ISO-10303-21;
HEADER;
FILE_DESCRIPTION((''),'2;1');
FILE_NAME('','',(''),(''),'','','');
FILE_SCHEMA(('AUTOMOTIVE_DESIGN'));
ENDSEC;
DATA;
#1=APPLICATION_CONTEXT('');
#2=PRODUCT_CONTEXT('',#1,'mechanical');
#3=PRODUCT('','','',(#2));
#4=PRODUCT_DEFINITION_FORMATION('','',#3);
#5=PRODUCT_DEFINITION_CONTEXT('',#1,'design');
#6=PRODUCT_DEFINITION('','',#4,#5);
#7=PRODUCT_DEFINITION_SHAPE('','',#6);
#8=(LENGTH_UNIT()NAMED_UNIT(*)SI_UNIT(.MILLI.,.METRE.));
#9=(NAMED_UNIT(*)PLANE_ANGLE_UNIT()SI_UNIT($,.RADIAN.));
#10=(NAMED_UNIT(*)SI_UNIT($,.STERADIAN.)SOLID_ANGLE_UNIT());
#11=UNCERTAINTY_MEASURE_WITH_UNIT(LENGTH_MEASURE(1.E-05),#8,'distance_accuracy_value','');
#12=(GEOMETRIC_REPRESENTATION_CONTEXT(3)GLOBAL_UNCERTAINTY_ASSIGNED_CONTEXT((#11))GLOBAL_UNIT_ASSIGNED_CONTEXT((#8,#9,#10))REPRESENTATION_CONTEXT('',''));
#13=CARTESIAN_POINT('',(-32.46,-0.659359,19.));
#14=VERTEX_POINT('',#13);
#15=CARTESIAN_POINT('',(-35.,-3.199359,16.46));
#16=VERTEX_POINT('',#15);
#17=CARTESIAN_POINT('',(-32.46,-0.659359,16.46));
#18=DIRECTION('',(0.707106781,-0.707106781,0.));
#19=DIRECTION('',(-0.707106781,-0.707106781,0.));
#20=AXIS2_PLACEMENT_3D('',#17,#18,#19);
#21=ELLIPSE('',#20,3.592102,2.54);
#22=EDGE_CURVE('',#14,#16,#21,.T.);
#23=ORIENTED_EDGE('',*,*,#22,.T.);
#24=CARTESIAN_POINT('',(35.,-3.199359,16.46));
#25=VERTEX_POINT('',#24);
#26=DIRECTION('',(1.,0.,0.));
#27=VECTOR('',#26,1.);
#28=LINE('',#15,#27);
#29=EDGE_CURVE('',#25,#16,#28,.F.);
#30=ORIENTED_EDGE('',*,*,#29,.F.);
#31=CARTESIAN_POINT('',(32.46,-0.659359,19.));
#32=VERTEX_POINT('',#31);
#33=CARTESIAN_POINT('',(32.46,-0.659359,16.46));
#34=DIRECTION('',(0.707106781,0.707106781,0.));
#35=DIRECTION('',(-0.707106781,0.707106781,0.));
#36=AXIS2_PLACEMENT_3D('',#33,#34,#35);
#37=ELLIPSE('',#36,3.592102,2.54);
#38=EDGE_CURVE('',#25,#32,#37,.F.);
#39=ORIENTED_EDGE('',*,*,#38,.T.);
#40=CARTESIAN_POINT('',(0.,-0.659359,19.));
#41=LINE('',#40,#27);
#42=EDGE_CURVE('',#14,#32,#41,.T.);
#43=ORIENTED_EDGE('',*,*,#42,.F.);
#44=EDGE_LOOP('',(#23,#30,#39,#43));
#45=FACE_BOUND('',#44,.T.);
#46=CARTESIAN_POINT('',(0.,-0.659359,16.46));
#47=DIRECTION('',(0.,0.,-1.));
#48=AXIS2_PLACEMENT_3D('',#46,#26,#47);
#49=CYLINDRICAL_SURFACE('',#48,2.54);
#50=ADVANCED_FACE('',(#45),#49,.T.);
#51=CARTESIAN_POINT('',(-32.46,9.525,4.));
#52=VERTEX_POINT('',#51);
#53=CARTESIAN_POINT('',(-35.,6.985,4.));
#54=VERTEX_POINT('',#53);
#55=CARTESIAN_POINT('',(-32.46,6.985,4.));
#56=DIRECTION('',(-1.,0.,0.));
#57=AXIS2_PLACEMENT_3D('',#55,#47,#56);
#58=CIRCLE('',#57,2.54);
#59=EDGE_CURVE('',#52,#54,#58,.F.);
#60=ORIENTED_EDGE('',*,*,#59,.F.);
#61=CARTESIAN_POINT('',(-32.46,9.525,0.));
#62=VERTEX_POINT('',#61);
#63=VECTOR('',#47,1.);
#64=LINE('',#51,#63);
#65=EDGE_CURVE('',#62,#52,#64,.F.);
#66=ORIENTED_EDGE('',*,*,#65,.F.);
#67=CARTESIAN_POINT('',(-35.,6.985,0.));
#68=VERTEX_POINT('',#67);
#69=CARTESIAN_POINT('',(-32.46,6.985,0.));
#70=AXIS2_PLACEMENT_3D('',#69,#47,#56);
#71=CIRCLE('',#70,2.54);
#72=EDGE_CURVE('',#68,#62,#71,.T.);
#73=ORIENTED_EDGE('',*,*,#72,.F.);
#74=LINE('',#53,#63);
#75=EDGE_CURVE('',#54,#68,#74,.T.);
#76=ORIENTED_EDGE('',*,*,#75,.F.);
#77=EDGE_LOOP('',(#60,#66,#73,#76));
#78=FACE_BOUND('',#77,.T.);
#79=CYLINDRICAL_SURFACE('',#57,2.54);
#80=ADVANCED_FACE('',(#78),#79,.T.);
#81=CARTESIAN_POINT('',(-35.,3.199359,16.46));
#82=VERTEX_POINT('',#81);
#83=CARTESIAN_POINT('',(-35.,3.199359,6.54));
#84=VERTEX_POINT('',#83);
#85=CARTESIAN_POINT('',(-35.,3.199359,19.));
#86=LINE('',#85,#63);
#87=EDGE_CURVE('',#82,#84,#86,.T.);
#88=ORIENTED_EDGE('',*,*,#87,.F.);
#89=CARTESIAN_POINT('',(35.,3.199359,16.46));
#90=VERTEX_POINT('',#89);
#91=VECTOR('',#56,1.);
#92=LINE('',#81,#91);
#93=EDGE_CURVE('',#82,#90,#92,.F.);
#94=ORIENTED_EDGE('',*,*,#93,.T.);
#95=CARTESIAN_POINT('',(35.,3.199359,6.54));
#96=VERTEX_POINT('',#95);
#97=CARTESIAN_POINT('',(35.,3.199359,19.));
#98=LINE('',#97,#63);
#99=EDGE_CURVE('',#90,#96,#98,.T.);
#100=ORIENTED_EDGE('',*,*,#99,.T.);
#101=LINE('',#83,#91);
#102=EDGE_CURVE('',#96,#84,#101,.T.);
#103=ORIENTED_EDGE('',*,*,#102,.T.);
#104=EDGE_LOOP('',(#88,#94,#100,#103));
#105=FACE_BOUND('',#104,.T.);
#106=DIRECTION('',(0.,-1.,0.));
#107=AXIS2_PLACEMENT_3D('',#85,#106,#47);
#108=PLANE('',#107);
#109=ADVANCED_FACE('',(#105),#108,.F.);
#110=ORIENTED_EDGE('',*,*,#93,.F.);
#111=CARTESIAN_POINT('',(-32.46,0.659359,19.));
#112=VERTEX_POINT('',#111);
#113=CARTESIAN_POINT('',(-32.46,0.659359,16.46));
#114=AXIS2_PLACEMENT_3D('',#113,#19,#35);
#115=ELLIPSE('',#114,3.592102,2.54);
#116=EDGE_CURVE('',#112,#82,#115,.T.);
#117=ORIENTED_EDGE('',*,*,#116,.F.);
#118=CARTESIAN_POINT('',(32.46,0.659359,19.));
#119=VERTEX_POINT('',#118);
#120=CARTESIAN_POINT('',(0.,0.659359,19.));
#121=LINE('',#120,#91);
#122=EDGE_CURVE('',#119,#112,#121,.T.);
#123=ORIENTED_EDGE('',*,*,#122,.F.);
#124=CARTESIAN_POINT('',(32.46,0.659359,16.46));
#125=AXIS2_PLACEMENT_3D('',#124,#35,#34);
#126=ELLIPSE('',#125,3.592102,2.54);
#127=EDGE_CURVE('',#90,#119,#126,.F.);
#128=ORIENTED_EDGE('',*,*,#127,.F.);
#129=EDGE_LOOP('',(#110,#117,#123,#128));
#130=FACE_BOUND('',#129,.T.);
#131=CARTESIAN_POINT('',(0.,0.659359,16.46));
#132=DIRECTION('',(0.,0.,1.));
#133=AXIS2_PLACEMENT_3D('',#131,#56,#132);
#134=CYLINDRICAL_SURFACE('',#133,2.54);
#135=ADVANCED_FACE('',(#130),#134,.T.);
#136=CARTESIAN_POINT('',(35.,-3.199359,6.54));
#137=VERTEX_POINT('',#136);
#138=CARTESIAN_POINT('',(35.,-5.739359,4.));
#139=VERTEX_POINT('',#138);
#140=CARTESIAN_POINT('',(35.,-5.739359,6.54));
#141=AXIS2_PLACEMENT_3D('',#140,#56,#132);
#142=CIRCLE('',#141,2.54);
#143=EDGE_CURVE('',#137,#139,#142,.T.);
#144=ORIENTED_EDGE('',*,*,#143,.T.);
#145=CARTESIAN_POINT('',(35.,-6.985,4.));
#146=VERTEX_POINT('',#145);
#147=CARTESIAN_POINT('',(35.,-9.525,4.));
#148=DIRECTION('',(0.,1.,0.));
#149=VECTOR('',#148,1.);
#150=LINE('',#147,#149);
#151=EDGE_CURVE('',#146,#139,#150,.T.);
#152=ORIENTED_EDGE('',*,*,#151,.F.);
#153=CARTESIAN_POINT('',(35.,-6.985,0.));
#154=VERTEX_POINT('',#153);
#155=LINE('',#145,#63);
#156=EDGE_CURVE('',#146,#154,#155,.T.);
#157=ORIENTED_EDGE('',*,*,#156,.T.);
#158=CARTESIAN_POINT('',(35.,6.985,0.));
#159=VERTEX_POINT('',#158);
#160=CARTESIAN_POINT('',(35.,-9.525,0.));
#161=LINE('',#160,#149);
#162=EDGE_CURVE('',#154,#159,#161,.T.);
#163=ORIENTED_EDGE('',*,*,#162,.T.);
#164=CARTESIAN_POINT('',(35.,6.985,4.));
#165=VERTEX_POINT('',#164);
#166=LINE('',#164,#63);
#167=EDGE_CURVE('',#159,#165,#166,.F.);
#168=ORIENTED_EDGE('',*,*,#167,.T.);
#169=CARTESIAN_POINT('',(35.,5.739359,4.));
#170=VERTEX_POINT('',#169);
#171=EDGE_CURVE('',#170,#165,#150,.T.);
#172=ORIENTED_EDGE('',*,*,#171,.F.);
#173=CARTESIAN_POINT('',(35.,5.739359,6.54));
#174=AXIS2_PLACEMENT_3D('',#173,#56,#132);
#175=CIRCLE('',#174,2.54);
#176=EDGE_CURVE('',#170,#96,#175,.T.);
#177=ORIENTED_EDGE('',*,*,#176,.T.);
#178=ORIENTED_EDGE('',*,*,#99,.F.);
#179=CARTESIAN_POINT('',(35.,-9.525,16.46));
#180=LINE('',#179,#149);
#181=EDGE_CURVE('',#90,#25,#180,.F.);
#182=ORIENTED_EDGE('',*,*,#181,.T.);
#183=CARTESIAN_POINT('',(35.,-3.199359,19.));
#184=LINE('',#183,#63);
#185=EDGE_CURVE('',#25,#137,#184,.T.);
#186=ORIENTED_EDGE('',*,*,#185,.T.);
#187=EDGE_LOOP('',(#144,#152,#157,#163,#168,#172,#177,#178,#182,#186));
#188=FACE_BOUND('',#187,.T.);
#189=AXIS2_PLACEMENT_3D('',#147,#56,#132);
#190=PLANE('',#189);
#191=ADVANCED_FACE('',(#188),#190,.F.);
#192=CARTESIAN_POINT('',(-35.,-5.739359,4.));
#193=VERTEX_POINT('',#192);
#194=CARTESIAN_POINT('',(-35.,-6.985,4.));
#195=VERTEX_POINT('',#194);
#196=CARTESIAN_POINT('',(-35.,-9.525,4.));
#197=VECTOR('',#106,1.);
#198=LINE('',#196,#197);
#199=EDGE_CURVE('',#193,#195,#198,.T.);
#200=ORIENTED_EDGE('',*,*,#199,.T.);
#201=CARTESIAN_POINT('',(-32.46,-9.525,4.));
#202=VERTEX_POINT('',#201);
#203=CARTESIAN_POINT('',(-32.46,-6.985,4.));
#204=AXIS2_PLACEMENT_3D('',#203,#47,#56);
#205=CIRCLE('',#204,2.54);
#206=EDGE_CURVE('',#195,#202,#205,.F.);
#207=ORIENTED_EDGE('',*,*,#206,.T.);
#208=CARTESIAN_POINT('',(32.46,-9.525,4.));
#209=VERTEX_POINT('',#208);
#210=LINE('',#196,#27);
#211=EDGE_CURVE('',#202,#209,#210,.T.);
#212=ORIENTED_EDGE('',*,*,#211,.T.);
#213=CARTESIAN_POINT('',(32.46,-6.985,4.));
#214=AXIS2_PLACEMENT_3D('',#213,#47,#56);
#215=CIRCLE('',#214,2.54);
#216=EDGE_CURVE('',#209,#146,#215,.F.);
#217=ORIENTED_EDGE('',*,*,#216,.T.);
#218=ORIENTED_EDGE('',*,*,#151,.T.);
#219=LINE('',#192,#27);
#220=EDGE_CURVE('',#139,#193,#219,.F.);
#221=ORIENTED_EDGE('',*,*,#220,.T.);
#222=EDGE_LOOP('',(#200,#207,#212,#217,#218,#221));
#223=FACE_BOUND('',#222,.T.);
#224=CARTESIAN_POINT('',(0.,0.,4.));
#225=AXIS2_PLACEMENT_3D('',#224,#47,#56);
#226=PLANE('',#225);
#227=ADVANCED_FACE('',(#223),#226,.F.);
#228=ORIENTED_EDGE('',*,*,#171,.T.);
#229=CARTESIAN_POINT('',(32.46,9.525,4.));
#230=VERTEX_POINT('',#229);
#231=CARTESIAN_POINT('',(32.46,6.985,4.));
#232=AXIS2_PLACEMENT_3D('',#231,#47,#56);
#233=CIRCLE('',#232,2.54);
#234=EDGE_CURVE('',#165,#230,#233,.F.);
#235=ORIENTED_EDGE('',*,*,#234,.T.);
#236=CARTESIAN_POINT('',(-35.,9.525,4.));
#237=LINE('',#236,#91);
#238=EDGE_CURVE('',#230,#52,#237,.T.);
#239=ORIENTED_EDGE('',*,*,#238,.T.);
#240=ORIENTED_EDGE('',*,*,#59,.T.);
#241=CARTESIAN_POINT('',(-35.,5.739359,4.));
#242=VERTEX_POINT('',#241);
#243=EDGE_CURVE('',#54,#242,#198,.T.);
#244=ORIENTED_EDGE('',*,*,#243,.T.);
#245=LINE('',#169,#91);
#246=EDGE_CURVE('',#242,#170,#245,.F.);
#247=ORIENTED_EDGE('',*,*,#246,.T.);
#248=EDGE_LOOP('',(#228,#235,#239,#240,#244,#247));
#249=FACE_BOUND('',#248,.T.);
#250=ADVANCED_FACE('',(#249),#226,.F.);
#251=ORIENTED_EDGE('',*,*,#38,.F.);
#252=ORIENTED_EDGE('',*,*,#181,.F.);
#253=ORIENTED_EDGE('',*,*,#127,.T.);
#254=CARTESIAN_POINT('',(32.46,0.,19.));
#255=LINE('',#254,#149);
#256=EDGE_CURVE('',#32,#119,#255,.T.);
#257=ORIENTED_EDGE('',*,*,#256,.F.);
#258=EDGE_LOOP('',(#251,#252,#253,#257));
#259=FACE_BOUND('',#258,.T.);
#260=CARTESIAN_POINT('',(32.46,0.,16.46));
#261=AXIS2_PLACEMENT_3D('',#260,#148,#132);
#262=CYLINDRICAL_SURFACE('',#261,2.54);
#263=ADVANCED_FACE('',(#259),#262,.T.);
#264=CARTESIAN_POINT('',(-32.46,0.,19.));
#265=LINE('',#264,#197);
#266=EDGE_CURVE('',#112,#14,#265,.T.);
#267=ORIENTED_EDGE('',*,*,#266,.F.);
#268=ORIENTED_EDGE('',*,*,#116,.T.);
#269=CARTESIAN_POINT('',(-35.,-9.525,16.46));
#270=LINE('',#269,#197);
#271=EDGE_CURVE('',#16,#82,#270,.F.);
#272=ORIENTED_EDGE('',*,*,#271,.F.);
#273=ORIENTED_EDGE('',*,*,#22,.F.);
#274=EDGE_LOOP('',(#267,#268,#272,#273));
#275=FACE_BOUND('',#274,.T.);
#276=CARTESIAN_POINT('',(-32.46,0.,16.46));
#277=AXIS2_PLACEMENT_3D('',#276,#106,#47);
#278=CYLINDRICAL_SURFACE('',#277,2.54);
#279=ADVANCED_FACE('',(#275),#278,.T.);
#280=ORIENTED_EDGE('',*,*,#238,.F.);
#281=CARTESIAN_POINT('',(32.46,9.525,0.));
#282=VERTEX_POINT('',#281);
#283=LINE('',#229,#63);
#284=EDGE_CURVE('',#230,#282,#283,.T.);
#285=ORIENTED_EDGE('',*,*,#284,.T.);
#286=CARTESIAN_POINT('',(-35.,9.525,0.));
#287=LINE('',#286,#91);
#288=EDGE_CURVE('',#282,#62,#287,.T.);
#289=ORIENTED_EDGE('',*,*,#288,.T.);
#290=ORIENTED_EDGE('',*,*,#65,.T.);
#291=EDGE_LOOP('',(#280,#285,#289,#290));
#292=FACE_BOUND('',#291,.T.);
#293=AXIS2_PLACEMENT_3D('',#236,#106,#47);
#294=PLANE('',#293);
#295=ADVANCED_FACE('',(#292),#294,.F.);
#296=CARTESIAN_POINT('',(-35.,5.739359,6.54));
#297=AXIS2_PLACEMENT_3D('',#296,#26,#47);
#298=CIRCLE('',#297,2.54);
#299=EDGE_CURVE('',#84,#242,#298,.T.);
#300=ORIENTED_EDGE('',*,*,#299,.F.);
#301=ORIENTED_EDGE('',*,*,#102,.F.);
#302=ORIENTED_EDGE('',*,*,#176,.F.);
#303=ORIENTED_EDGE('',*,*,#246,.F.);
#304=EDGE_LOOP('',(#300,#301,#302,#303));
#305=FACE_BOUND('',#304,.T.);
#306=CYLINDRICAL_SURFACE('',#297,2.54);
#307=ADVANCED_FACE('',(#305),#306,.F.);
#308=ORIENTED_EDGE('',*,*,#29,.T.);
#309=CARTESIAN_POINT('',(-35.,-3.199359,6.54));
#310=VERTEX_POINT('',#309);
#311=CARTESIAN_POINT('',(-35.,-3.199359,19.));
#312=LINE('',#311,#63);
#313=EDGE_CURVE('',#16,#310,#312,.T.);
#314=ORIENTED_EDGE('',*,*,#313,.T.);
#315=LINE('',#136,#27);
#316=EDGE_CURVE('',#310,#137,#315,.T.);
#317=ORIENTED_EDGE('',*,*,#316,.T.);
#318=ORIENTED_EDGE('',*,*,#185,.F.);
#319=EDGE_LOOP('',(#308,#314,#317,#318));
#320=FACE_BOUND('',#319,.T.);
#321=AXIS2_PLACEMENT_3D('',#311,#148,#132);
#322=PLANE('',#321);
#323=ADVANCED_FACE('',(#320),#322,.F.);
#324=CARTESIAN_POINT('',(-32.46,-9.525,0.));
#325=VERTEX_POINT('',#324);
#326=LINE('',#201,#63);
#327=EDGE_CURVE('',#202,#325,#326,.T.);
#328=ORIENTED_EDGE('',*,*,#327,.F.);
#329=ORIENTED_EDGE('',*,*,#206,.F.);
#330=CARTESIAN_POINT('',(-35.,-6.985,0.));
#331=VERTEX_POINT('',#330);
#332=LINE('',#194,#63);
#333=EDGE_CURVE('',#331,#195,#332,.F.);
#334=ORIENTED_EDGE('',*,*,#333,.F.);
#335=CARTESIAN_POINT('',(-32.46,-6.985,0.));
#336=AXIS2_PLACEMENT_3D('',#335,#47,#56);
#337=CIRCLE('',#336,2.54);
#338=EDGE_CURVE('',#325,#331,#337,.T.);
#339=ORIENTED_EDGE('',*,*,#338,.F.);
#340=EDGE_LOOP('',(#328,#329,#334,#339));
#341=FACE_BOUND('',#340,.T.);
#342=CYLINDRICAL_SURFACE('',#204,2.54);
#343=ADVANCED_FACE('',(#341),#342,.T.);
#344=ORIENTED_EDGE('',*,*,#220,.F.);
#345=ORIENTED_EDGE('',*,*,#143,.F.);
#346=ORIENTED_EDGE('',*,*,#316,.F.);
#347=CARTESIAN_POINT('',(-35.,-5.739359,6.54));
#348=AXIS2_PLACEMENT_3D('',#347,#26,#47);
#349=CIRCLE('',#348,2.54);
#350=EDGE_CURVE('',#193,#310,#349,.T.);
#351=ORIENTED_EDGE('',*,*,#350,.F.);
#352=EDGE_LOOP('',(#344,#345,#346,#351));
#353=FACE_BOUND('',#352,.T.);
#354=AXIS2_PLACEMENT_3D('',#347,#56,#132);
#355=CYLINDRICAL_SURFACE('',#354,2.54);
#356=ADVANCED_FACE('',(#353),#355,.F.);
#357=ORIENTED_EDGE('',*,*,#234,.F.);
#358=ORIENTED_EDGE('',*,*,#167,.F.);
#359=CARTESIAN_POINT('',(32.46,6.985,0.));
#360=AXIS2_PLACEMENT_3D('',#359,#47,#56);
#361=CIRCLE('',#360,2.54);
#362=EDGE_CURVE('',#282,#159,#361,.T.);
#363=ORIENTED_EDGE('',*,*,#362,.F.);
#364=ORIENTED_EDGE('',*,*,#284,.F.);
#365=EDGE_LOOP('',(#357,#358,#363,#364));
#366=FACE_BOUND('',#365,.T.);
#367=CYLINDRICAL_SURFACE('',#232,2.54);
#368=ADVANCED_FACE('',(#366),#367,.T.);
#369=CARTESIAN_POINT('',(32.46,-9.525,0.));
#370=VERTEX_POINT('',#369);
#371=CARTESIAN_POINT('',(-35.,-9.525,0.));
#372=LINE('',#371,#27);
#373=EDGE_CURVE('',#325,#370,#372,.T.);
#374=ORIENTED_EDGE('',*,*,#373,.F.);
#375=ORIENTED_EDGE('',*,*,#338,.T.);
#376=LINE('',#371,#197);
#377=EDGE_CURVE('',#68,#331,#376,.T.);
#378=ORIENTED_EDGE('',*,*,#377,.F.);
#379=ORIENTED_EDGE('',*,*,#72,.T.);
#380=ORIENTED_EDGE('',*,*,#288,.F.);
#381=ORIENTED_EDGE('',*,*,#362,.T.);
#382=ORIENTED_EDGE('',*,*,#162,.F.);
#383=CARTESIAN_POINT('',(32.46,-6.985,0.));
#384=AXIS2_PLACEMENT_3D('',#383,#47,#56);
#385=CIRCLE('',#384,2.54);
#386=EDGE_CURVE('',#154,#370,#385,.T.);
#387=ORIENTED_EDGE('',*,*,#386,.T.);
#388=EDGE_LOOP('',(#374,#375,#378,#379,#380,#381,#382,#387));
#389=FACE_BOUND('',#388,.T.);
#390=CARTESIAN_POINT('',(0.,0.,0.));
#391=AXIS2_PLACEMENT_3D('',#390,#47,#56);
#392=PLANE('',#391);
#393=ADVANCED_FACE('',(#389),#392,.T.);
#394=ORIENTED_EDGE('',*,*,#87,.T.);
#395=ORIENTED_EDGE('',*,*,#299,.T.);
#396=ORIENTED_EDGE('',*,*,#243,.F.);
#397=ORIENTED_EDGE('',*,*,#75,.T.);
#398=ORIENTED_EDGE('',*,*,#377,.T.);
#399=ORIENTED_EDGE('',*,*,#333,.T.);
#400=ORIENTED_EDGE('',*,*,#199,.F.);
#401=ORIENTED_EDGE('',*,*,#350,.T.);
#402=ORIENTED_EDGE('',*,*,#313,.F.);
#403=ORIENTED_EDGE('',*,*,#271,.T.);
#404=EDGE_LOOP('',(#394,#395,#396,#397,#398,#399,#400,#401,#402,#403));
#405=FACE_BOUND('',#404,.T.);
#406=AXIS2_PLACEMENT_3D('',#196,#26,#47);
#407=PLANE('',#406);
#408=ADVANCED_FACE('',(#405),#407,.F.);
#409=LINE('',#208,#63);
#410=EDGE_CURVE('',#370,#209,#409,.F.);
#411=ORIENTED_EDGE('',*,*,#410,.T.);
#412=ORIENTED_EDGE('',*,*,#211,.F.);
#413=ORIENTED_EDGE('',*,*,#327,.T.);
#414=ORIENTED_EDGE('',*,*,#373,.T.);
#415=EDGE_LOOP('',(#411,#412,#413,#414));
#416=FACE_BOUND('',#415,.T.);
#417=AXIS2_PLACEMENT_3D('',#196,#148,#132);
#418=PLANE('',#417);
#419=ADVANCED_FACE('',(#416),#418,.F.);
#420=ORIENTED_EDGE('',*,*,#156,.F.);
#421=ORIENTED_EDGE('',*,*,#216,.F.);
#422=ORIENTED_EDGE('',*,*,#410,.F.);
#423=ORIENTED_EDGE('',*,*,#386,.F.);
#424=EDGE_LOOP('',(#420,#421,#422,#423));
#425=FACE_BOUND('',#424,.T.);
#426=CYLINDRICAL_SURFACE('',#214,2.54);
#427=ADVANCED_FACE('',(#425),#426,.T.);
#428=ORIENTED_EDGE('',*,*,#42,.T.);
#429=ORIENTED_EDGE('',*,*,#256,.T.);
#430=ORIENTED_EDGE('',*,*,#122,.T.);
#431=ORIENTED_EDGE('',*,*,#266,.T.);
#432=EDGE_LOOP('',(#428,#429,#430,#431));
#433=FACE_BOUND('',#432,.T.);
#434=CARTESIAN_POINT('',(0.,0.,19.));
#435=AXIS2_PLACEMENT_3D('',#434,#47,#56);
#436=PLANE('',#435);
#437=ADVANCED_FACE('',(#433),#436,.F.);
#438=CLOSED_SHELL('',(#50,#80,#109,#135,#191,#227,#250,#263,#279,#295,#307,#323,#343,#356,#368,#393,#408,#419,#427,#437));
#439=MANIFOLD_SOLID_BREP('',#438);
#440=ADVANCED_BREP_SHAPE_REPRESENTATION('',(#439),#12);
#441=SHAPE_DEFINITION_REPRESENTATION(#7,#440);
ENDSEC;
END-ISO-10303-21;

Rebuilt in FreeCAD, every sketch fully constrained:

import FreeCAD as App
import Part
import Sketcher
Q = App.Units.Quantity


def edges_at(feature, points):
    """Names of the edges that pass closest to the given points."""
    edges = feature.Shape.Edges
    near = lambda p: min(range(len(edges)), key=lambda i: edges[i].distToShape(Part.Vertex(*p))[0])
    return sorted({f"Edge{near(p) + 1}" for p in points})


def add_polygon(sketch, points):
    """Adds a closed chain of lines whose ends are joined by coincident constraints."""
    first, n = sketch.GeometryCount, len(points)
    for a, b in zip(points, points[1:] + points[:1]):
        sketch.addGeometry(Part.LineSegment(App.Vector(*a, 0), App.Vector(*b, 0)), False)
    for i in range(n):
        sketch.addConstraint(Sketcher.Constraint("Coincident", first + i, 2, first + (i + 1) % n, 1))

doc = App.newDocument("Part")
body = doc.addObject("PartDesign::Body", "Body")

# Sketch on XY plane
sketch1 = body.newObject("Sketcher::SketchObject", "Sketch")
sketch1.AttachmentSupport = (doc.getObject("XY_Plane"), [""])
sketch1.MapMode = "FlatFace"
add_polygon(sketch1, [(-35, 9.525), (-35, -9.525), (35, -9.525), (35, 9.525)])  # lines 0-3
sketch1.addConstraint([
    Sketcher.Constraint("Vertical", 0),
    Sketcher.Constraint("Horizontal", 1),
    Sketcher.Constraint("Vertical", 2),
    Sketcher.Constraint("Horizontal", 3),
    Sketcher.Constraint("Symmetric", 0, 2, 2, 2, -1, 1),
    Sketcher.Constraint("DistanceX", 1, 1, 1, 2, Q("70 mm")),
    Sketcher.Constraint("DistanceY", 0, 2, 0, 1, Q("19.05 mm")),
])
pad1 = body.newObject("PartDesign::Pad", "Pad")
pad1.Profile = sketch1
pad1.Length = 4

# Sketch on XY plane
sketch2 = body.newObject("Sketcher::SketchObject", "Sketch001")
sketch2.AttachmentSupport = (doc.getObject("XY_Plane"), [""])
sketch2.MapMode = "FlatFace"
sketch2.AttachmentOffset = App.Placement(App.Vector(0, 0, 4), App.Rotation())
add_polygon(sketch2, [(-35, 3.199359), (-35, -3.199359), (35, -3.199359), (35, 3.199359)])  # lines 0-3
sketch2.addConstraint([
    Sketcher.Constraint("Vertical", 0),
    Sketcher.Constraint("Horizontal", 1),
    Sketcher.Constraint("Vertical", 2),
    Sketcher.Constraint("Horizontal", 3),
    Sketcher.Constraint("Symmetric", 0, 2, 2, 2, -1, 1),
    Sketcher.Constraint("DistanceX", 1, 1, 1, 2, Q("70 mm")),
    Sketcher.Constraint("DistanceY", 0, 2, 0, 1, Q("6.398718 mm")),
])
pad2 = body.newObject("PartDesign::Pad", "Pad001")
pad2.Profile = sketch2
pad2.Length = 15
doc.recompute()

fillet = body.newObject("PartDesign::Fillet", "Fillet")
fillet.Base = (pad2, edges_at(pad2, [
    (0, 3.199, 4),
    (0, -3.199, 4),
    (35, 0, 19),
    (0, 3.199, 19),
    (-35, 0, 19),
    (0, -3.199, 19),
    (35, -9.525, 2),
    (-35, -9.525, 2),
    (-35, 9.525, 2),
    (35, 9.525, 2),
]))
fillet.Radius = 2.54

doc.recompute()
